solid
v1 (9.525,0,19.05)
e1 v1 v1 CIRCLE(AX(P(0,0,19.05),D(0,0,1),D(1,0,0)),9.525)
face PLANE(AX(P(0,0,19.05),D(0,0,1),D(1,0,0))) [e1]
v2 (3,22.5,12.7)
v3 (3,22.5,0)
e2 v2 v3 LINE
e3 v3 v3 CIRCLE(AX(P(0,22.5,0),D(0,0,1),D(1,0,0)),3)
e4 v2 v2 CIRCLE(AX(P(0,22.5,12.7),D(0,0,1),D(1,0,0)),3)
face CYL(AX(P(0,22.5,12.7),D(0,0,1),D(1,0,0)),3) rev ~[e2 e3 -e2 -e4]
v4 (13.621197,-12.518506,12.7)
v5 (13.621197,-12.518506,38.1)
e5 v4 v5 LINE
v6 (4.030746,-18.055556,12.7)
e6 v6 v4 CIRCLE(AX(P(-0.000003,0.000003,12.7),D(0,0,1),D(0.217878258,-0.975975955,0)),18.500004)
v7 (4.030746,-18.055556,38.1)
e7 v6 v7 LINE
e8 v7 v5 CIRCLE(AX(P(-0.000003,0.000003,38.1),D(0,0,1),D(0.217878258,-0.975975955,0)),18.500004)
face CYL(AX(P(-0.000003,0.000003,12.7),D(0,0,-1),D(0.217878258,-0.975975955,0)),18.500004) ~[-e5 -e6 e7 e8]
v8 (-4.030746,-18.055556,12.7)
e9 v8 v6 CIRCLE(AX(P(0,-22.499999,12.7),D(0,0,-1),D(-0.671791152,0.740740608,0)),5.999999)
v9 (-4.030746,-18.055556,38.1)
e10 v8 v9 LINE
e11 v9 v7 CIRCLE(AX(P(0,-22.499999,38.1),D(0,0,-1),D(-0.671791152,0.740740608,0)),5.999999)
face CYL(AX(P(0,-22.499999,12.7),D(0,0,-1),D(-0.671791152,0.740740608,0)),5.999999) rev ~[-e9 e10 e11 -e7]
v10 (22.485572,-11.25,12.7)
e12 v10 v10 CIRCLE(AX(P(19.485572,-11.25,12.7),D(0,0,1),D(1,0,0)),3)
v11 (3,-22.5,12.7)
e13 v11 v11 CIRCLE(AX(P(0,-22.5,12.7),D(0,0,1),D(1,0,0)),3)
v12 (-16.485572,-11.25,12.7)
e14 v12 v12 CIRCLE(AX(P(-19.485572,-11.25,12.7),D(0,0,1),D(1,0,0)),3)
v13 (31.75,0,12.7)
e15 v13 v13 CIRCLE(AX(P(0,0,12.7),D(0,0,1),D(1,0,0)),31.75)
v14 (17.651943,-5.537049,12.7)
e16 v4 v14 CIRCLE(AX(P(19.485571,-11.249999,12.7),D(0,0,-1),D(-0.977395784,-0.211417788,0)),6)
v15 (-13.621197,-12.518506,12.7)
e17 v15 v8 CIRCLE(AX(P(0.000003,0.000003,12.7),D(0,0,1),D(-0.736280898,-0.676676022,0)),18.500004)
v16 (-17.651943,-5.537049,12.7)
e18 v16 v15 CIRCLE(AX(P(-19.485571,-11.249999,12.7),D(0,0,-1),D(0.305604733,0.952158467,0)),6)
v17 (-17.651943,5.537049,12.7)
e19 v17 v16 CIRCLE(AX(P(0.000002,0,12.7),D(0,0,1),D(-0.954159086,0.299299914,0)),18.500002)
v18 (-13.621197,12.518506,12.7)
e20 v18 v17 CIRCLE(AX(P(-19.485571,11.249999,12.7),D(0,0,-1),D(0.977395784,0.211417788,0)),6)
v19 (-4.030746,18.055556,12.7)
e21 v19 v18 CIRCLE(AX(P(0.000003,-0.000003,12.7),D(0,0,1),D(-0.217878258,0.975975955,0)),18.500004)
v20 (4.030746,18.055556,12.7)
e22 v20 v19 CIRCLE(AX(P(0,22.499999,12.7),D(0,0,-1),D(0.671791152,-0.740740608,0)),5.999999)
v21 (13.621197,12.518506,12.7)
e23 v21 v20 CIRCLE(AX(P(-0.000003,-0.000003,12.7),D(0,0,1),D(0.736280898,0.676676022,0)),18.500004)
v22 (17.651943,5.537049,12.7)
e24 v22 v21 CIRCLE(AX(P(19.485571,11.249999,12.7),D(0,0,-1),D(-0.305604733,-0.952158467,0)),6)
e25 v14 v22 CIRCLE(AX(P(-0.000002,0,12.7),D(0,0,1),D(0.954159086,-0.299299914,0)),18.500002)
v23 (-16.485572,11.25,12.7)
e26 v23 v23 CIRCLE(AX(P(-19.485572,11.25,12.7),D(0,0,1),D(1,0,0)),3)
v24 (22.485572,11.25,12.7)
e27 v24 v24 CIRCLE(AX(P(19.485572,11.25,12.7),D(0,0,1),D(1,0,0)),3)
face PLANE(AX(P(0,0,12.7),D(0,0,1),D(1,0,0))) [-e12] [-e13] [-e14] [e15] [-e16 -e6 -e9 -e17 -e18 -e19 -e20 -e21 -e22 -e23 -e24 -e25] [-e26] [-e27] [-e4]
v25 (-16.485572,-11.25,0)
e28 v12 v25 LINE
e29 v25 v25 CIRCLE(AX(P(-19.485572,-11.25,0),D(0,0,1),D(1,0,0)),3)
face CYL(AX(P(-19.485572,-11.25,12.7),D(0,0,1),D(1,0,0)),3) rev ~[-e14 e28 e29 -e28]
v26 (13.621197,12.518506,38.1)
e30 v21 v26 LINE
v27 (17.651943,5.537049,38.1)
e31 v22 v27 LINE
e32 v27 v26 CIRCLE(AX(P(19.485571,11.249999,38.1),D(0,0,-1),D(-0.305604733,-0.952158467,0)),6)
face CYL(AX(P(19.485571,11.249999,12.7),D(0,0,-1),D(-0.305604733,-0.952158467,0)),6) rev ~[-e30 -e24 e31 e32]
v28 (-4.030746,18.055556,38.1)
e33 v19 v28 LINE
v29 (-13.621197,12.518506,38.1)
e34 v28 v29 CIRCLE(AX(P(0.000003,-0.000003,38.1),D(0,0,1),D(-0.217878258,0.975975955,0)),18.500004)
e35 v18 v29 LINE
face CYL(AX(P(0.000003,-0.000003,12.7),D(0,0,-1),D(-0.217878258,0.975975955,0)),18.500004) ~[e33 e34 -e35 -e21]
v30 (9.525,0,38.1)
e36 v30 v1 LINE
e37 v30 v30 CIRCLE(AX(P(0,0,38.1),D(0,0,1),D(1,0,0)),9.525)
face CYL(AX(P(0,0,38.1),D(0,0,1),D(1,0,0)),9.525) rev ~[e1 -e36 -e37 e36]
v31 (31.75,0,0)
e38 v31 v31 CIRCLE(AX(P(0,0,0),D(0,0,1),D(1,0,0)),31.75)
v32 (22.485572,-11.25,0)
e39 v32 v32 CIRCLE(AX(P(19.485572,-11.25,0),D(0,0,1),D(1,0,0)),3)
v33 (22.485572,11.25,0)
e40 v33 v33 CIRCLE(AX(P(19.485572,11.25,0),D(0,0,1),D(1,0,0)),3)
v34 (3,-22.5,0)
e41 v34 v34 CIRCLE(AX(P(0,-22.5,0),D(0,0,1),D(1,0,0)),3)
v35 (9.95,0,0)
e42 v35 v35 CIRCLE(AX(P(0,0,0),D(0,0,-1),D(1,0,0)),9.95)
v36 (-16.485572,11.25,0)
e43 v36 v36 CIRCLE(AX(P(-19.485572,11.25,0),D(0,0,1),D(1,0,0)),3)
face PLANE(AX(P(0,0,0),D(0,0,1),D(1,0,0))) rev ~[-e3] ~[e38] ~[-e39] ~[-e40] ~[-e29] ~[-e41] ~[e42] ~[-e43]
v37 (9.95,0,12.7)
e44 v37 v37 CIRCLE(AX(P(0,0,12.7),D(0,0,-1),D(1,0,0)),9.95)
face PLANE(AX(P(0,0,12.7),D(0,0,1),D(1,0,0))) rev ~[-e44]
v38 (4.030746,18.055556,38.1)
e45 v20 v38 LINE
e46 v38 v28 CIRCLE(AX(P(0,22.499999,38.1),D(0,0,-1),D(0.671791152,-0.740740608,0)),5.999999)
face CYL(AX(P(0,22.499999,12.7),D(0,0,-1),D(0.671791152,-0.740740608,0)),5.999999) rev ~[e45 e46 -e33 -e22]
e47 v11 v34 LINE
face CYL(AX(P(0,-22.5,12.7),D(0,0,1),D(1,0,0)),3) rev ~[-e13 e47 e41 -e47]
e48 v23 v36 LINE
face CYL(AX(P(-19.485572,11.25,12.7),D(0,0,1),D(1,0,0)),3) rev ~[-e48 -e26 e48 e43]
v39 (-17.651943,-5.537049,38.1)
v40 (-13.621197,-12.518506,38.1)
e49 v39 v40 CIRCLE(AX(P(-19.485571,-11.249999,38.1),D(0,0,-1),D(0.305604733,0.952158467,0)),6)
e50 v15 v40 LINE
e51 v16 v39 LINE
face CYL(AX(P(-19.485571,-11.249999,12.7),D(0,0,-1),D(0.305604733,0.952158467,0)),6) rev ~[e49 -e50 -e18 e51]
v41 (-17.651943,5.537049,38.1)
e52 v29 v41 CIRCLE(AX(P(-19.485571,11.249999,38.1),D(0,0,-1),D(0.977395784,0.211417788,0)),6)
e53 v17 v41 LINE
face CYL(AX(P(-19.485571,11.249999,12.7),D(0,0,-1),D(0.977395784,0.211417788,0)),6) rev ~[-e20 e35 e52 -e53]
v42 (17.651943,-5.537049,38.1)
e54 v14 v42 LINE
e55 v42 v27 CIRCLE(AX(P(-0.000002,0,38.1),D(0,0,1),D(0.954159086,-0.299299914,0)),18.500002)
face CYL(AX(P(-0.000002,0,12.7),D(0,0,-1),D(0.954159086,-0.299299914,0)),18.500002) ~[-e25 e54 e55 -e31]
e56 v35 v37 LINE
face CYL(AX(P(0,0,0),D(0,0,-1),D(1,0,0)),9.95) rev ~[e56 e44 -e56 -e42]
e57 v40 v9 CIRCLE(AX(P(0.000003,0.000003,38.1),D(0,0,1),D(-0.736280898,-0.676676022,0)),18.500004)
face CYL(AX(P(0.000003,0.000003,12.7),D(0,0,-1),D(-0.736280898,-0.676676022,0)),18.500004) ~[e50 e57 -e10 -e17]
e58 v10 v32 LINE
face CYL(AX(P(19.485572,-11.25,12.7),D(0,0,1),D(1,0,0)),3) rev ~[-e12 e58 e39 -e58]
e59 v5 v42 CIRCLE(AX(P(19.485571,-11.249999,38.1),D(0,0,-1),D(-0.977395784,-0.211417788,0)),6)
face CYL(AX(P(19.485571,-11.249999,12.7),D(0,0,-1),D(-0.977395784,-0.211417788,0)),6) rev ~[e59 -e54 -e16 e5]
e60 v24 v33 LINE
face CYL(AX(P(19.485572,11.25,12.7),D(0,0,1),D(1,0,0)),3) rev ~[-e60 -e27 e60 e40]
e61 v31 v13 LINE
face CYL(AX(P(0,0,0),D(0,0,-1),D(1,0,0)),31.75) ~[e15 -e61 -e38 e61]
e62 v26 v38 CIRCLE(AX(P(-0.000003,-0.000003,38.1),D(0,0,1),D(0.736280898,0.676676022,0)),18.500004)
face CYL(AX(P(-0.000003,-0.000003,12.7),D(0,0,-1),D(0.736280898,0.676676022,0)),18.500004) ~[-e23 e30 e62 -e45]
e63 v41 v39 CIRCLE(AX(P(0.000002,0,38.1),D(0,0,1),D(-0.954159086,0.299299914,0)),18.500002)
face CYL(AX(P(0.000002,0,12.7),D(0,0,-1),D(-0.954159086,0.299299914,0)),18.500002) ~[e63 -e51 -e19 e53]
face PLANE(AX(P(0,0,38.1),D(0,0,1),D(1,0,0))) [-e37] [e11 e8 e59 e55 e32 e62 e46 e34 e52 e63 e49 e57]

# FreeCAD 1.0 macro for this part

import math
import FreeCAD as App
import Part
import Sketcher

V = App.Vector
Q = App.Units.Quantity

doc = App.newDocument("Part")
params = doc.addObject("Spreadsheet::Sheet", "Params")
for row, (alias, value) in enumerate([
    ("sketch1_diameter", "2.5 in"),
    ("pad1_length", "0.5 in"),
    ("pocket2_length", "0.5 in"),
    ("pad2_length", "1 in"),
    ("sketch5_diameter", "0.75 in"),
    ("pocket3_length", "0.75 in"),
], start=1):
    params.set(f"A{row}", alias)
    params.set(f"B{row}", "=" + value)
    params.setAlias(f"B{row}", alias)

body = doc.addObject("PartDesign::Body", "Body")

# Sketch on XY plane
sketch1 = body.newObject("Sketcher::SketchObject", "Sketch")
sketch1.AttachmentSupport = (doc.getObject("XY_Plane"), [""])
sketch1.MapMode = "FlatFace"
sketch1.addGeometry(Part.Circle(V(0, 0, 0), V(0, 0, 1), 31.75), False)
sketch1.addConstraint([
    Sketcher.Constraint("Coincident", 0, 3, -1, 1),
    Sketcher.Constraint("Diameter", 0, Q("2.5 in")),
])
sketch1.setExpression("Constraints[1]", "Params.sketch1_diameter")
pad1 = body.newObject("PartDesign::Pad", "Pad")
pad1.Profile = sketch1
pad1.setExpression("Length", "Params.pad1_length")

# Sketch on XY plane
sketch2 = body.newObject("Sketcher::SketchObject", "Sketch001")
sketch2.AttachmentSupport = (doc.getObject("XY_Plane"), [""])
sketch2.MapMode = "FlatFace"
sketch2.AttachmentOffset = App.Placement(V(0, 0, 0.5 * 25.4), App.Rotation())
sketch2.addGeometry([
    Part.Circle(V(0, 22.5, 0), V(0, 0, 1), 3),  # 0
    Part.Circle(V(-19.485572, 11.25, 0), V(0, 0, 1), 3),  # 1
    Part.Circle(V(-19.485572, -11.25, 0), V(0, 0, 1), 3),  # 2
    Part.Circle(V(0, -22.5, 0), V(0, 0, 1), 3),  # 3
    Part.Circle(V(19.485572, -11.25, 0), V(0, 0, 1), 3),  # 4
    Part.Circle(V(19.485572, 11.25, 0), V(0, 0, 1), 3),  # 5
], False)
sketch2.addConstraint([
    Sketcher.Constraint("Equal", 0, 1),
    Sketcher.Constraint("Equal", 1, 2),
    Sketcher.Constraint("Equal", 2, 3),
    Sketcher.Constraint("Equal", 3, 4),
    Sketcher.Constraint("Equal", 4, 5),
    Sketcher.Constraint("Symmetric", 0, 3, 3, 3, -1, 1),
    Sketcher.Constraint("Symmetric", 1, 3, 4, 3, -1, 1),
    Sketcher.Constraint("Symmetric", 2, 3, 5, 3, -1, 1),
    Sketcher.Constraint("Symmetric", 2, 3, 4, 3, -2),
    Sketcher.Constraint("PointOnObject", 0, 3, -2),
    Sketcher.Constraint("Diameter", 0, 6.0),
    Sketcher.Constraint("DistanceY", -1, 1, 0, 3, 22.5),
    Sketcher.Constraint("DistanceY", -1, 1, 1, 3, 11.25),
    Sketcher.Constraint("DistanceX", 1, 3, -1, 1, 19.485572),
])
pocket1 = body.newObject("PartDesign::Pocket", "Pocket")
pocket1.Profile = sketch2
pocket1.Type = "ThroughAll"

# Sketch on XY plane
sketch3 = body.newObject("Sketcher::SketchObject", "Sketch002")
sketch3.AttachmentSupport = (doc.getObject("XY_Plane"), [""])
sketch3.MapMode = "FlatFace"
sketch3.addGeometry(Part.Circle(V(0, 0, 0), V(0, 0, 1), 9.95), False)
sketch3.addConstraint([
    Sketcher.Constraint("Coincident", 0, 3, -1, 1),
    Sketcher.Constraint("Diameter", 0, 19.9),
])
pocket2 = body.newObject("PartDesign::Pocket", "Pocket001")
pocket2.Profile = sketch3
pocket2.setExpression("Length", "Params.pocket2_length")
pocket2.Reversed = True

# Sketch on XY plane
sketch4 = body.newObject("Sketcher::SketchObject", "Sketch003")
sketch4.AttachmentSupport = (doc.getObject("XY_Plane"), [""])
sketch4.MapMode = "FlatFace"
sketch4.AttachmentOffset = App.Placement(V(0, 0, 0.5 * 25.4), App.Rotation())
sketch4.addGeometry([
    Part.ArcOfCircle(Part.Circle(V(0, -22.499999, 0), V(0, 0, 1), 5.999999), math.radians(47.794542), math.radians(132.205458)),  # 0
    Part.ArcOfCircle(Part.Circle(V(-0.000003, 0.000003, 0), V(0, 0, 1), 18.500004), math.radians(-77.415557), math.radians(-42.584439)),  # 1
    Part.ArcOfCircle(Part.Circle(V(19.485571, -11.249999, 0), V(0, 0, 1), 6), math.radians(107.79455), math.radians(192.205451)),  # 2
    Part.ArcOfCircle(Part.Circle(V(-0.000002, 0, 0), V(0, 0, 1), 18.500002), math.radians(-17.415559), math.radians(17.415559)),  # 3
    Part.ArcOfCircle(Part.Circle(V(19.485571, 11.249999, 0), V(0, 0, 1), 6), math.radians(167.794549), math.radians(252.20545)),  # 4
    Part.ArcOfCircle(Part.Circle(V(-0.000003, -0.000003, 0), V(0, 0, 1), 18.500004), math.radians(42.584439), math.radians(77.415557)),  # 5
    Part.ArcOfCircle(Part.Circle(V(0, 22.499999, 0), V(0, 0, 1), 5.999999), math.radians(-132.205458), math.radians(-47.794542)),  # 6
    Part.ArcOfCircle(Part.Circle(V(0.000003, -0.000003, 0), V(0, 0, 1), 18.500004), math.radians(102.584443), math.radians(137.415561)),  # 7
    Part.ArcOfCircle(Part.Circle(V(-19.485571, 11.249999, 0), V(0, 0, 1), 6), math.radians(-72.20545), math.radians(12.205451)),  # 8
    Part.ArcOfCircle(Part.Circle(V(0.000002, 0, 0), V(0, 0, 1), 18.500002), math.radians(162.584441), math.radians(197.415559)),  # 9
    Part.ArcOfCircle(Part.Circle(V(-19.485571, -11.249999, 0), V(0, 0, 1), 6), math.radians(-12.205451), math.radians(72.20545)),  # 10
    Part.ArcOfCircle(Part.Circle(V(0.000003, 0.000003, 0), V(0, 0, 1), 18.500004), math.radians(-137.415561), math.radians(-102.584443)),  # 11
], False)
sketch4.addConstraint([
    Sketcher.Constraint("Coincident", 0, 1, 1, 1),
    Sketcher.Constraint("Coincident", 1, 2, 2, 2),
    Sketcher.Constraint("Coincident", 2, 1, 3, 1),
    Sketcher.Constraint("Coincident", 3, 2, 4, 2),
    Sketcher.Constraint("Coincident", 4, 1, 5, 1),
    Sketcher.Constraint("Coincident", 5, 2, 6, 2),
    Sketcher.Constraint("Coincident", 6, 1, 7, 1),
    Sketcher.Constraint("Coincident", 7, 2, 8, 2),
    Sketcher.Constraint("Coincident", 8, 1, 9, 1),
    Sketcher.Constraint("Coincident", 9, 2, 10, 2),
    Sketcher.Constraint("Coincident", 10, 1, 11, 1),
    Sketcher.Constraint("Coincident", 11, 2, 0, 2),
    Sketcher.Constraint("Coincident", 1, 3, -1, 1),
    Sketcher.Constraint("Coincident", 3, 3, -1, 1),
    Sketcher.Constraint("Coincident", 5, 3, -1, 1),
    Sketcher.Constraint("Coincident", 7, 3, -1, 1),
    Sketcher.Constraint("Coincident", 9, 3, -1, 1),
    Sketcher.Constraint("Coincident", 11, 3, -1, 1),
    Sketcher.Constraint("Equal", 0, 2),
    Sketcher.Constraint("Equal", 2, 4),
    Sketcher.Constraint("Equal", 1, 5),
    Sketcher.Constraint("Equal", 4, 6),
    Sketcher.Constraint("Equal", 5, 7),
    Sketcher.Constraint("Equal", 6, 8),
    Sketcher.Constraint("Equal", 3, 9),
    Sketcher.Constraint("Equal", 8, 10),
    Sketcher.Constraint("Equal", 7, 11),
    Sketcher.Constraint("Symmetric", 0, 3, 6, 3, -1, 1),
    Sketcher.Constraint("Symmetric", 2, 3, 8, 3, -1, 1),
    Sketcher.Constraint("Symmetric", 4, 3, 10, 3, -1, 1),
    Sketcher.Constraint("Symmetric", 4, 3, 8, 3, -2),
    Sketcher.Constraint("PointOnObject", 0, 3, -2),
    Sketcher.Constraint("Radius", 0, 5.999999),
    Sketcher.Constraint("Radius", 3, 18.500002),
    Sketcher.Constraint("Radius", 1, 18.500004),
    Sketcher.Constraint("DistanceY", 0, 3, -1, 1, 22.499999),
    Sketcher.Constraint("DistanceY", 2, 3, -1, 1, 11.249999),
    Sketcher.Constraint("DistanceX", -1, 1, 2, 3, 19.485571),
])
pad2 = body.newObject("PartDesign::Pad", "Pad001")
pad2.Profile = sketch4
pad2.setExpression("Length", "Params.pad2_length")

# Sketch on XY plane
sketch5 = body.newObject("Sketcher::SketchObject", "Sketch004")
sketch5.AttachmentSupport = (doc.getObject("XY_Plane"), [""])
sketch5.MapMode = "FlatFace"
sketch5.AttachmentOffset = App.Placement(V(0, 0, 1.5 * 25.4), App.Rotation())
sketch5.addGeometry(Part.Circle(V(0, 0, 0), V(0, 0, 1), 9.525), False)
sketch5.addConstraint([
    Sketcher.Constraint("Coincident", 0, 3, -1, 1),
    Sketcher.Constraint("Diameter", 0, Q("0.75 in")),
])
sketch5.setExpression("Constraints[1]", "Params.sketch5_diameter")
pocket3 = body.newObject("PartDesign::Pocket", "Pocket002")
pocket3.Profile = sketch5
pocket3.setExpression("Length", "Params.pocket3_length")

doc.recompute()
